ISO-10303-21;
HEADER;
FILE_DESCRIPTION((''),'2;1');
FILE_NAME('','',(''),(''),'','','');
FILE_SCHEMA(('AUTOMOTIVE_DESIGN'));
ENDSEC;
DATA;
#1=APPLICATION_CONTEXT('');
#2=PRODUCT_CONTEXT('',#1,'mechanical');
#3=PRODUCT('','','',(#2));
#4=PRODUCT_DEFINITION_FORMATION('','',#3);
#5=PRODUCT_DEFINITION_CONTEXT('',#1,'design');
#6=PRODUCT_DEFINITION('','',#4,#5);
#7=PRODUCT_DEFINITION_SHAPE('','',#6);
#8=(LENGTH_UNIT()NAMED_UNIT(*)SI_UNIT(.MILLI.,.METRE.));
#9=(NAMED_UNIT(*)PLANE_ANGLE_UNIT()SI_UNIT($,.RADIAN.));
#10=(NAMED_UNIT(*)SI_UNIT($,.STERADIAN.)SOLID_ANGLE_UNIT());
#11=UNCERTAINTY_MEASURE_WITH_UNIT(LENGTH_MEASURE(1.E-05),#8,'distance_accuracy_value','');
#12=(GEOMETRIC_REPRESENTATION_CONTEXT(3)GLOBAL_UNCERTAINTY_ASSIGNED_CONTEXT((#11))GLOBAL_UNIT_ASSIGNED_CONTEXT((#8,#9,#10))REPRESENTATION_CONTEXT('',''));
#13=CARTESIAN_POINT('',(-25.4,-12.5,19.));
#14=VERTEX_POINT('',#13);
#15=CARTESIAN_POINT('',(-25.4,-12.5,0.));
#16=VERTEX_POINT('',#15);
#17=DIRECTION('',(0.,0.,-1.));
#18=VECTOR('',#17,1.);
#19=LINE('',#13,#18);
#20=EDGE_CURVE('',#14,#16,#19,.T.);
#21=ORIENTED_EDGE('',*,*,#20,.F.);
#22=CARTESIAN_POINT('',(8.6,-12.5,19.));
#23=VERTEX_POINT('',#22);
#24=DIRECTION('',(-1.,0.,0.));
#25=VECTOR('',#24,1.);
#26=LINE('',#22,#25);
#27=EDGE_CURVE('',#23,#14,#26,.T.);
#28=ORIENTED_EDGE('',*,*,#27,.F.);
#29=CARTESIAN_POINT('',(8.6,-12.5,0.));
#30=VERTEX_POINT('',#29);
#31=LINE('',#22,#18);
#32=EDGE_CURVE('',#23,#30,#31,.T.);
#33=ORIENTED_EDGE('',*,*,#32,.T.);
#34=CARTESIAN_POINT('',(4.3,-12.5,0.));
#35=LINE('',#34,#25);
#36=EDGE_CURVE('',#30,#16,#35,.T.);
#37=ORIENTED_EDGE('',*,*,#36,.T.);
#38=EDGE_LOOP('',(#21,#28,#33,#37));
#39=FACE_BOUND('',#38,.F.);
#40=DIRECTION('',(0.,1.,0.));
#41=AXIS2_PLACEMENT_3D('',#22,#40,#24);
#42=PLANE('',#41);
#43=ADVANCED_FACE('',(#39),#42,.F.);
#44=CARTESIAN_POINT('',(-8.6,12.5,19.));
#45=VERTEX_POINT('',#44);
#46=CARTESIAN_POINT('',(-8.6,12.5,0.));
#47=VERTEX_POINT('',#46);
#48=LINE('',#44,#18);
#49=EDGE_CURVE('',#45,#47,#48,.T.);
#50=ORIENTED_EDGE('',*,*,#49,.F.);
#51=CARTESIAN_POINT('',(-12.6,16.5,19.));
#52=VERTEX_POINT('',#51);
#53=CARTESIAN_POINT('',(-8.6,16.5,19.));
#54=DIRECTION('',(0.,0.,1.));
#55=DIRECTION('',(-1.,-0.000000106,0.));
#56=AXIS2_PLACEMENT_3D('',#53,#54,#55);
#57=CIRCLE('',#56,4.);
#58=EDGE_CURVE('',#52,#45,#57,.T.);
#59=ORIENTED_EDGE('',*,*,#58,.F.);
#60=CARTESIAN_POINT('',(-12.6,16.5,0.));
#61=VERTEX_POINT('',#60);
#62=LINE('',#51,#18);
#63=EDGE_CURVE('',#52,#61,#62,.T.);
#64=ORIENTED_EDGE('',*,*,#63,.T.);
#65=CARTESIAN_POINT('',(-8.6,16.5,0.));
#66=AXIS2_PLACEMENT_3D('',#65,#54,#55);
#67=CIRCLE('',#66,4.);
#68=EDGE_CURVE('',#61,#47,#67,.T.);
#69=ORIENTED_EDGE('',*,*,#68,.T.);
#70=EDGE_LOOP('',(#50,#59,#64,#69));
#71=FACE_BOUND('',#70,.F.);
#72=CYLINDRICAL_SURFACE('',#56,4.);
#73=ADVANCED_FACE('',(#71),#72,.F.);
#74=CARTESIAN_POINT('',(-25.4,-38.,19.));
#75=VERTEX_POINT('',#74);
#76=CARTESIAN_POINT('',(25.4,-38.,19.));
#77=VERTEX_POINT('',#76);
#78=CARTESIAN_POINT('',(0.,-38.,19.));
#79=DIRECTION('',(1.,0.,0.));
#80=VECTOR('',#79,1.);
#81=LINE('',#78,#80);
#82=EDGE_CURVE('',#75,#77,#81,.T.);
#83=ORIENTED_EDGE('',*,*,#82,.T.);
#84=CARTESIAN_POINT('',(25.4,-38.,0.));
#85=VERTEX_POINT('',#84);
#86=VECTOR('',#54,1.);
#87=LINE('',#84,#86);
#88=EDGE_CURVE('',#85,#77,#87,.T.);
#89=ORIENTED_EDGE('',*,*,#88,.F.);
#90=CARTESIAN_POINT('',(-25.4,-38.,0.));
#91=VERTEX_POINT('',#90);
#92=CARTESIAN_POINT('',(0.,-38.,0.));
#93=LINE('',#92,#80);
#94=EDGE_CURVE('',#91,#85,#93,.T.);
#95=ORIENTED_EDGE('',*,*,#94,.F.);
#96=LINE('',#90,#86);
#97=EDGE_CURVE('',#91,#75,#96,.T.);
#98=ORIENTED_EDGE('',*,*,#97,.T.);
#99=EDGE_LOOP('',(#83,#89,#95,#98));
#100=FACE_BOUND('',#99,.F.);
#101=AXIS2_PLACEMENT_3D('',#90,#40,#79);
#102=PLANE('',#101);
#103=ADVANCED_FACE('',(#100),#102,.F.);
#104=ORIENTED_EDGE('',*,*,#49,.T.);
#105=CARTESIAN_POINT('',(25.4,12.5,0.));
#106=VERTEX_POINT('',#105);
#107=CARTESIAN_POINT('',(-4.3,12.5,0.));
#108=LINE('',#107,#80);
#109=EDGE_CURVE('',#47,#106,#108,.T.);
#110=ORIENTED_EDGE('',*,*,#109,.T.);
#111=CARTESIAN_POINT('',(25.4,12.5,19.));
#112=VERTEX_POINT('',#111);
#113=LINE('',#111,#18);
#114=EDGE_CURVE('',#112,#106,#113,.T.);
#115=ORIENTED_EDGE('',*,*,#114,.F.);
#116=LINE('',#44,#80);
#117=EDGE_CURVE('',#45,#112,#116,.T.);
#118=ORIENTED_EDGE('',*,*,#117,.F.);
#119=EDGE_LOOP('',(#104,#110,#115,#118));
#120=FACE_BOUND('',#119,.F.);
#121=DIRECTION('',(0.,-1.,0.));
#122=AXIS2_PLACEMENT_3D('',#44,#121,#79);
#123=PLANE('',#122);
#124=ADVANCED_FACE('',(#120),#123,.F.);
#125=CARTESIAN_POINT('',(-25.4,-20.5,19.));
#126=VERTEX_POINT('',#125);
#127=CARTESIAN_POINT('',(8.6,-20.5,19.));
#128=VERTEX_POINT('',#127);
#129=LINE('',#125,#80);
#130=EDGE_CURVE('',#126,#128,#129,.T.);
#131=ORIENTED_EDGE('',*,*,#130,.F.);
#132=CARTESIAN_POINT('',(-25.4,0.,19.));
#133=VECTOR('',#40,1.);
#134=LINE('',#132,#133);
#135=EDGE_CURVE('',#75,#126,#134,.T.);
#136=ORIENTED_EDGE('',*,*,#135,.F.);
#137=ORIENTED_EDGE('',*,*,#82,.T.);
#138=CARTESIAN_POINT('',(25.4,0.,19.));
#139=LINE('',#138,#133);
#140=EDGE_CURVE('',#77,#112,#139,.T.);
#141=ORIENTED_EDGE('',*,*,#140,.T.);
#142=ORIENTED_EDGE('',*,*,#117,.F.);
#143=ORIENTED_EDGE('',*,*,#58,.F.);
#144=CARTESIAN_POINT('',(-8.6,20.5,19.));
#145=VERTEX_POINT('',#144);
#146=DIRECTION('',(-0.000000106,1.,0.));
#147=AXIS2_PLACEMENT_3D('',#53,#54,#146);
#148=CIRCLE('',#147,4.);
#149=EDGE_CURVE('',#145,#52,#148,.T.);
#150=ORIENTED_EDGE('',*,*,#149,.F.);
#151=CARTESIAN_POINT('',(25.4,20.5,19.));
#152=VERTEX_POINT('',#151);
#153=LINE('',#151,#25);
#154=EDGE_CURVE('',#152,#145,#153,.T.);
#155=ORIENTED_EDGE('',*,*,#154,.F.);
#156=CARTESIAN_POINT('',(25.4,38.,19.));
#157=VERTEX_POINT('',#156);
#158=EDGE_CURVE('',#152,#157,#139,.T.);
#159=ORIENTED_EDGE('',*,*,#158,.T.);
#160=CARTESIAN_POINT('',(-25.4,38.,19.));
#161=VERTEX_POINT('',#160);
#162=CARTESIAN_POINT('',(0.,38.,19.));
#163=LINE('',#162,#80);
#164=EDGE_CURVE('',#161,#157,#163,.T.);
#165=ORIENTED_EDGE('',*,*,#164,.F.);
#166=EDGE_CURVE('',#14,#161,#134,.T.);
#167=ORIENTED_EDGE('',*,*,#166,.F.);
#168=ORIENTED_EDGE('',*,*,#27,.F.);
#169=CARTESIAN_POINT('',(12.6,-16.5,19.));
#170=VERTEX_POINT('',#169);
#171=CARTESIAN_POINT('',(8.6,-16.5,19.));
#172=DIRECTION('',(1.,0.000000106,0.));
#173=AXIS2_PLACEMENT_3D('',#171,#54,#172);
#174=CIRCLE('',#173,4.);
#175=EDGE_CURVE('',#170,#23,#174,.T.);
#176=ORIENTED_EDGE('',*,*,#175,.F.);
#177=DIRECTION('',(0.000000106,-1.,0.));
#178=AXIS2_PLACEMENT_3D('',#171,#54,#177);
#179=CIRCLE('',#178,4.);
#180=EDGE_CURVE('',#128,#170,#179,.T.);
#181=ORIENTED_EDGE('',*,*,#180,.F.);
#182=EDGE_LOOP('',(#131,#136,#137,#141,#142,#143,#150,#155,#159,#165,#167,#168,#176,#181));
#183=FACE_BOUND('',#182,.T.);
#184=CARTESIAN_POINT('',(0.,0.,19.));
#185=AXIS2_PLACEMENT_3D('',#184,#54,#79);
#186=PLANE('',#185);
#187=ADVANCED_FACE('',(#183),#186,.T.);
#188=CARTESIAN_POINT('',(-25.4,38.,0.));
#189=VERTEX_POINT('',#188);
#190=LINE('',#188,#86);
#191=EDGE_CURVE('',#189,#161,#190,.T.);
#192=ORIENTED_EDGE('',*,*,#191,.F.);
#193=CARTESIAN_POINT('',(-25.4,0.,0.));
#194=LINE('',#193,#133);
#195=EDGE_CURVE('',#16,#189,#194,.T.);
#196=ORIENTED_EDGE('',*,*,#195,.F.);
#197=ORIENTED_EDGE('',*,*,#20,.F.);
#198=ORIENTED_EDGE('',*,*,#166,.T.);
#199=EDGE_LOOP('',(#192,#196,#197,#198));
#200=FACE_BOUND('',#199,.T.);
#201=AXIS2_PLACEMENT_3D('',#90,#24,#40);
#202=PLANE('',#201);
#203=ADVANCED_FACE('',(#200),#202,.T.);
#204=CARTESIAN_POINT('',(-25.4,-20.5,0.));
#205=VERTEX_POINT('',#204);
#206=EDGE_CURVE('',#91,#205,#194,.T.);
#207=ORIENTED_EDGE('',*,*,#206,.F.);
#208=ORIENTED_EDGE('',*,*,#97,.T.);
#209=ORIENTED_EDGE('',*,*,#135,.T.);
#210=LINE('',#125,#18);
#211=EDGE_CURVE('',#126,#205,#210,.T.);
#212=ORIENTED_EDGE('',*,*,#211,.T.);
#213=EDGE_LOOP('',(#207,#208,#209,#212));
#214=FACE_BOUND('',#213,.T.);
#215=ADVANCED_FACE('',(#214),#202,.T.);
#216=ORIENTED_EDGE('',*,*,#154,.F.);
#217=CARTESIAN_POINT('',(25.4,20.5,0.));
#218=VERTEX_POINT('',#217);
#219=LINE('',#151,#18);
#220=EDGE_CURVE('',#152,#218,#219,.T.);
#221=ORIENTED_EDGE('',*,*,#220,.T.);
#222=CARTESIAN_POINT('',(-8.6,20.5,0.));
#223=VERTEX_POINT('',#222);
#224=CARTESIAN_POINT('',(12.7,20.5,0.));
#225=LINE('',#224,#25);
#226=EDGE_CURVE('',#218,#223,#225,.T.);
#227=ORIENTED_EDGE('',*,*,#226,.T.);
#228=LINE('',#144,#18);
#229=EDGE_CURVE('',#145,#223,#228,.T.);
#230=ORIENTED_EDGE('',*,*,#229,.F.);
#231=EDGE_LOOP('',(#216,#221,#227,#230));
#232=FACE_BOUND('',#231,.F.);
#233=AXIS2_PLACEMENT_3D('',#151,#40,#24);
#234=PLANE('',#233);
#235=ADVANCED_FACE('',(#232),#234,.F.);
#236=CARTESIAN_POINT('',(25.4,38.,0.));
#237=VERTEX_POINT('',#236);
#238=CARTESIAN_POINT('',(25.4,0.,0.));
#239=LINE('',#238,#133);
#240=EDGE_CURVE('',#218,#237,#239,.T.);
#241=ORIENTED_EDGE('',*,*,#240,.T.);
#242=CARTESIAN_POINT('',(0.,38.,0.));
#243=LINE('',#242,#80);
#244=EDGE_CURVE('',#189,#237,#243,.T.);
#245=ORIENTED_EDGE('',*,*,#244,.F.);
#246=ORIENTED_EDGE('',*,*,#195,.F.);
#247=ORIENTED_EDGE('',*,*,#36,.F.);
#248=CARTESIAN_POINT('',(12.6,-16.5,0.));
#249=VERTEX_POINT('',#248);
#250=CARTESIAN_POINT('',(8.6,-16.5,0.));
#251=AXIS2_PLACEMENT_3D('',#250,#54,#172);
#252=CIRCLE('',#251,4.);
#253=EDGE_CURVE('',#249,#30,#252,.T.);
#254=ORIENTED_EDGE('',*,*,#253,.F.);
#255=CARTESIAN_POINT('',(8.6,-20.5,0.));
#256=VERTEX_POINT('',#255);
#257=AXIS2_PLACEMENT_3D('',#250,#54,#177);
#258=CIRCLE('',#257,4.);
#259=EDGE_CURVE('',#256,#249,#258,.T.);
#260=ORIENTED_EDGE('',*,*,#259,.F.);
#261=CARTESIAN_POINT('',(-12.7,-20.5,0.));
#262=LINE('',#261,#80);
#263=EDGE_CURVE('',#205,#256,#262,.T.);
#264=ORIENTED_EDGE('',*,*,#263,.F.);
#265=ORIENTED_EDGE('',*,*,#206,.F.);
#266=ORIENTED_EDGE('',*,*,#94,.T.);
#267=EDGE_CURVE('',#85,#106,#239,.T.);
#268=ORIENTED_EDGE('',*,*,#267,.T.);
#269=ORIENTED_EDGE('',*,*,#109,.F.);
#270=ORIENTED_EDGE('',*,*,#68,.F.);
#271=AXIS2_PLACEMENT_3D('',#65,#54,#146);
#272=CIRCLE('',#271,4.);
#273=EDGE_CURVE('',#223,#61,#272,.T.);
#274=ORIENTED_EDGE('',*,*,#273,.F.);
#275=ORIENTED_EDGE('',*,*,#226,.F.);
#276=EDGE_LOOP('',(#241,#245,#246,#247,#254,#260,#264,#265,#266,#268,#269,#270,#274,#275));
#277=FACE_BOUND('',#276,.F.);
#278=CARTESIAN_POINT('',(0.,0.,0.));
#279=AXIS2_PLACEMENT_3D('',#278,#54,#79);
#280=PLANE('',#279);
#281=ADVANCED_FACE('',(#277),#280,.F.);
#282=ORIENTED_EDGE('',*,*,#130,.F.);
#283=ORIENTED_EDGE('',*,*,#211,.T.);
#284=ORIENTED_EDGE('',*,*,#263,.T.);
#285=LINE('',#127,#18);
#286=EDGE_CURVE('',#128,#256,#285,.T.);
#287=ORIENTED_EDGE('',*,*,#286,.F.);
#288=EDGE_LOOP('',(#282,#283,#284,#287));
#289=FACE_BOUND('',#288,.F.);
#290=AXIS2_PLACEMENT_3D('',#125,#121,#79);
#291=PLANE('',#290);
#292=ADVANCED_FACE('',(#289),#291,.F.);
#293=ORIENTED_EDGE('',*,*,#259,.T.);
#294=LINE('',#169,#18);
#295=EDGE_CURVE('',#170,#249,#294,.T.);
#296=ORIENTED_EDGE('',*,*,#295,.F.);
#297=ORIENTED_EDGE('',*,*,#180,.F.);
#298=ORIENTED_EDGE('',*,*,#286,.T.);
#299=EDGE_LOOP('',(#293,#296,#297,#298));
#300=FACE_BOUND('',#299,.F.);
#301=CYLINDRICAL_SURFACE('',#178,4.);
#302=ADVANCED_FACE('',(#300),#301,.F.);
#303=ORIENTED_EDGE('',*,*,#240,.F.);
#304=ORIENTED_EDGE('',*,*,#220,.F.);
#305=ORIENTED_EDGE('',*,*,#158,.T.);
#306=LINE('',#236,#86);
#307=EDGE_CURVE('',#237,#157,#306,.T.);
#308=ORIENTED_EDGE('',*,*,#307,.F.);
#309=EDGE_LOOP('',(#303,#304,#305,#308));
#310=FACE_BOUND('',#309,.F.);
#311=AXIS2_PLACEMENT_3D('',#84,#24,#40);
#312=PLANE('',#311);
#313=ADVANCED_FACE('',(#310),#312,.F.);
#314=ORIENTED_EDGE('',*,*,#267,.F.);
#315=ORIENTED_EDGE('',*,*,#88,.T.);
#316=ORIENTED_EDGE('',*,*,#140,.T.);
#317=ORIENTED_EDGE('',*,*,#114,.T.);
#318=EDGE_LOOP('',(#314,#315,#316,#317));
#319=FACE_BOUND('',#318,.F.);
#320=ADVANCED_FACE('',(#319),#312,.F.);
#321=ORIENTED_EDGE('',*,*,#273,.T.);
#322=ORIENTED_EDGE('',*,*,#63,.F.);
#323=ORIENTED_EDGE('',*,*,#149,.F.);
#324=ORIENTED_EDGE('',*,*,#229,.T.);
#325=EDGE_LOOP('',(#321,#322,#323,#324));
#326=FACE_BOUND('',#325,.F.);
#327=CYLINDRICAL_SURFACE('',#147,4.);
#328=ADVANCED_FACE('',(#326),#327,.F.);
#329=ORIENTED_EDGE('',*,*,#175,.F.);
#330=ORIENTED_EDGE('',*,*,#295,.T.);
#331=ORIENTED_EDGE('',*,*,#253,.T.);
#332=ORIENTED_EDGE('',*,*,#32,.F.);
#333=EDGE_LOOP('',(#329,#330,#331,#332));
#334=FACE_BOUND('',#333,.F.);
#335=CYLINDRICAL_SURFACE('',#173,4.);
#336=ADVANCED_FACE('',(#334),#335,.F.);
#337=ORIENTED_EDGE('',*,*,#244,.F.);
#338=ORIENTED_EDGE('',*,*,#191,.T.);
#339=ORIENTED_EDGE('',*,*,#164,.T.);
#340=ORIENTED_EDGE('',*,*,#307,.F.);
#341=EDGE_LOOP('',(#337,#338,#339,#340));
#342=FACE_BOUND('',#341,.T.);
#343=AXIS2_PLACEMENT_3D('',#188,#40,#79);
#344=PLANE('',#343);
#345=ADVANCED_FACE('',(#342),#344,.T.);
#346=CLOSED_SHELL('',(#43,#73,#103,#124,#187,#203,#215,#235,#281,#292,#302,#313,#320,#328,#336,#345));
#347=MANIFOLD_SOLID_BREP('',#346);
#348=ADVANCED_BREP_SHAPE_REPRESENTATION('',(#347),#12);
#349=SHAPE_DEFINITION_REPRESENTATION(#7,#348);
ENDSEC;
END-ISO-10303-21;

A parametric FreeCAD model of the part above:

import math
import FreeCAD as App
import Part
import Sketcher

V = App.Vector


def add_polygon(sketch, points):
    """Adds a closed chain of lines whose ends are joined by coincident constraints."""
    first, n = sketch.GeometryCount, len(points)
    for a, b in zip(points, points[1:] + points[:1]):
        sketch.addGeometry(Part.LineSegment(App.Vector(*a, 0), App.Vector(*b, 0)), False)
    for i in range(n):
        sketch.addConstraint(Sketcher.Constraint("Coincident", first + i, 2, first + (i + 1) % n, 1))

doc = App.newDocument("Part")
body = doc.addObject("PartDesign::Body", "Body")

# Sketch on XY plane
sketch1 = body.newObject("Sketcher::SketchObject", "Sketch")
sketch1.AttachmentSupport = (doc.getObject("XY_Plane"), [""])
sketch1.MapMode = "FlatFace"
add_polygon(sketch1, [(-25, 38), (-25, -38), (25, -38), (25, 38)])  # lines 0-3
sketch1.addConstraint([
    Sketcher.Constraint("Vertical", 0),
    Sketcher.Constraint("Horizontal", 1),
    Sketcher.Constraint("Vertical", 2),
    Sketcher.Constraint("Horizontal", 3),
    Sketcher.Constraint("Symmetric", 0, 2, 2, 2, -1, 1),
    Sketcher.Constraint("DistanceY", 0, 2, 0, 1, 76.0),
    Sketcher.Constraint("DistanceX", 1, 1, 1, 2, 50.8),
])
pad1 = body.newObject("PartDesign::Pad", "Pad")
pad1.Profile = sketch1
pad1.Length = 19

# Sketch on XY plane
sketch2 = body.newObject("Sketcher::SketchObject", "Sketch001")
sketch2.AttachmentSupport = (doc.getObject("XY_Plane"), [""])
sketch2.MapMode = "FlatFace"
sketch2.AttachmentOffset = App.Placement(V(0, 0, 19), App.Rotation())
sketch2.addGeometry([
    Part.LineSegment(V(-25.4, -12.5, 0), V(-25.4, -20.5, 0)),  # 0
    Part.LineSegment(V(-25.4, -20.5, 0), V(8.6, -20.5, 0)),  # 1
    Part.ArcOfCircle(Part.Circle(V(8.6, -16.5, 0), V(0, 0, 1), 4), math.radians(-90), math.radians(0)),  # 2
    Part.ArcOfCircle(Part.Circle(V(8.6, -16.5, 0), V(0, 0, 1), 4), math.radians(0), math.radians(90)),  # 3
    Part.LineSegment(V(8.6, -12.5, 0), V(-25.4, -12.5, 0)),  # 4
], False)
sketch2.addConstraint([
    Sketcher.Constraint("Coincident", 0, 2, 1, 1),
    Sketcher.Constraint("Tangent", 1, 2, 2, 1),
    Sketcher.Constraint("Tangent", 2, 2, 3, 1),
    Sketcher.Constraint("Tangent", 3, 2, 4, 1),
    Sketcher.Constraint("Coincident", 4, 2, 0, 1),
    Sketcher.Constraint("Vertical", 0),
    Sketcher.Constraint("Horizontal", 1),
    Sketcher.Constraint("Horizontal", 4),
    Sketcher.Constraint("Equal", 2, 3),
    Sketcher.Constraint("Horizontal", 3, 3, 2, 2),
    Sketcher.Constraint("Radius", 2, 4.0),
    Sketcher.Constraint("DistanceX", 1, 1, 1, 2, 34.0),
    Sketcher.Constraint("DistanceX", -1, 1, 2, 3, 8.6),
    Sketcher.Constraint("DistanceY", 2, 3, -1, 1, 16.5),
])
pocket1 = body.newObject("PartDesign::Pocket", "Pocket")
pocket1.Profile = sketch2
pocket1.Type = "ThroughAll"

# Sketch on XY plane
sketch3 = body.newObject("Sketcher::SketchObject", "Sketch002")
sketch3.AttachmentSupport = (doc.getObject("XY_Plane"), [""])
sketch3.MapMode = "FlatFace"
sketch3.AttachmentOffset = App.Placement(V(0, 0, 19), App.Rotation())
sketch3.addGeometry([
    Part.LineSegment(V(25.4, 12.5, 0), V(25.4, 20.5, 0)),  # 0
    Part.LineSegment(V(25.4, 20.5, 0), V(-8.6, 20.5, 0)),  # 1
    Part.ArcOfCircle(Part.Circle(V(-8.6, 16.5, 0), V(0, 0, 1), 4), math.radians(90), math.radians(180)),  # 2
    Part.ArcOfCircle(Part.Circle(V(-8.6, 16.5, 0), V(0, 0, 1), 4), math.radians(-180), math.radians(-90)),  # 3
    Part.LineSegment(V(-8.6, 12.5, 0), V(25.4, 12.5, 0)),  # 4
], False)
sketch3.addConstraint([
    Sketcher.Constraint("Coincident", 0, 2, 1, 1),
    Sketcher.Constraint("Tangent", 1, 2, 2, 1),
    Sketcher.Constraint("Tangent", 2, 2, 3, 1),
    Sketcher.Constraint("Tangent", 3, 2, 4, 1),
    Sketcher.Constraint("Coincident", 4, 2, 0, 1),
    Sketcher.Constraint("Vertical", 0),
    Sketcher.Constraint("Horizontal", 1),
    Sketcher.Constraint("Horizontal", 4),
    Sketcher.Constraint("Equal", 2, 3),
    Sketcher.Constraint("Horizontal", 3, 3, 2, 2),
    Sketcher.Constraint("Radius", 2, 4.0),
    Sketcher.Constraint("DistanceX", 1, 2, 1, 1, 34.0),
    Sketcher.Constraint("DistanceX", 2, 3, -1, 1, 8.6),
    Sketcher.Constraint("DistanceY", -1, 1, 2, 3, 16.5),
])
pocket2 = body.newObject("PartDesign::Pocket", "Pocket001")
pocket2.Profile = sketch3
pocket2.Type = "ThroughAll"

doc.recompute()
